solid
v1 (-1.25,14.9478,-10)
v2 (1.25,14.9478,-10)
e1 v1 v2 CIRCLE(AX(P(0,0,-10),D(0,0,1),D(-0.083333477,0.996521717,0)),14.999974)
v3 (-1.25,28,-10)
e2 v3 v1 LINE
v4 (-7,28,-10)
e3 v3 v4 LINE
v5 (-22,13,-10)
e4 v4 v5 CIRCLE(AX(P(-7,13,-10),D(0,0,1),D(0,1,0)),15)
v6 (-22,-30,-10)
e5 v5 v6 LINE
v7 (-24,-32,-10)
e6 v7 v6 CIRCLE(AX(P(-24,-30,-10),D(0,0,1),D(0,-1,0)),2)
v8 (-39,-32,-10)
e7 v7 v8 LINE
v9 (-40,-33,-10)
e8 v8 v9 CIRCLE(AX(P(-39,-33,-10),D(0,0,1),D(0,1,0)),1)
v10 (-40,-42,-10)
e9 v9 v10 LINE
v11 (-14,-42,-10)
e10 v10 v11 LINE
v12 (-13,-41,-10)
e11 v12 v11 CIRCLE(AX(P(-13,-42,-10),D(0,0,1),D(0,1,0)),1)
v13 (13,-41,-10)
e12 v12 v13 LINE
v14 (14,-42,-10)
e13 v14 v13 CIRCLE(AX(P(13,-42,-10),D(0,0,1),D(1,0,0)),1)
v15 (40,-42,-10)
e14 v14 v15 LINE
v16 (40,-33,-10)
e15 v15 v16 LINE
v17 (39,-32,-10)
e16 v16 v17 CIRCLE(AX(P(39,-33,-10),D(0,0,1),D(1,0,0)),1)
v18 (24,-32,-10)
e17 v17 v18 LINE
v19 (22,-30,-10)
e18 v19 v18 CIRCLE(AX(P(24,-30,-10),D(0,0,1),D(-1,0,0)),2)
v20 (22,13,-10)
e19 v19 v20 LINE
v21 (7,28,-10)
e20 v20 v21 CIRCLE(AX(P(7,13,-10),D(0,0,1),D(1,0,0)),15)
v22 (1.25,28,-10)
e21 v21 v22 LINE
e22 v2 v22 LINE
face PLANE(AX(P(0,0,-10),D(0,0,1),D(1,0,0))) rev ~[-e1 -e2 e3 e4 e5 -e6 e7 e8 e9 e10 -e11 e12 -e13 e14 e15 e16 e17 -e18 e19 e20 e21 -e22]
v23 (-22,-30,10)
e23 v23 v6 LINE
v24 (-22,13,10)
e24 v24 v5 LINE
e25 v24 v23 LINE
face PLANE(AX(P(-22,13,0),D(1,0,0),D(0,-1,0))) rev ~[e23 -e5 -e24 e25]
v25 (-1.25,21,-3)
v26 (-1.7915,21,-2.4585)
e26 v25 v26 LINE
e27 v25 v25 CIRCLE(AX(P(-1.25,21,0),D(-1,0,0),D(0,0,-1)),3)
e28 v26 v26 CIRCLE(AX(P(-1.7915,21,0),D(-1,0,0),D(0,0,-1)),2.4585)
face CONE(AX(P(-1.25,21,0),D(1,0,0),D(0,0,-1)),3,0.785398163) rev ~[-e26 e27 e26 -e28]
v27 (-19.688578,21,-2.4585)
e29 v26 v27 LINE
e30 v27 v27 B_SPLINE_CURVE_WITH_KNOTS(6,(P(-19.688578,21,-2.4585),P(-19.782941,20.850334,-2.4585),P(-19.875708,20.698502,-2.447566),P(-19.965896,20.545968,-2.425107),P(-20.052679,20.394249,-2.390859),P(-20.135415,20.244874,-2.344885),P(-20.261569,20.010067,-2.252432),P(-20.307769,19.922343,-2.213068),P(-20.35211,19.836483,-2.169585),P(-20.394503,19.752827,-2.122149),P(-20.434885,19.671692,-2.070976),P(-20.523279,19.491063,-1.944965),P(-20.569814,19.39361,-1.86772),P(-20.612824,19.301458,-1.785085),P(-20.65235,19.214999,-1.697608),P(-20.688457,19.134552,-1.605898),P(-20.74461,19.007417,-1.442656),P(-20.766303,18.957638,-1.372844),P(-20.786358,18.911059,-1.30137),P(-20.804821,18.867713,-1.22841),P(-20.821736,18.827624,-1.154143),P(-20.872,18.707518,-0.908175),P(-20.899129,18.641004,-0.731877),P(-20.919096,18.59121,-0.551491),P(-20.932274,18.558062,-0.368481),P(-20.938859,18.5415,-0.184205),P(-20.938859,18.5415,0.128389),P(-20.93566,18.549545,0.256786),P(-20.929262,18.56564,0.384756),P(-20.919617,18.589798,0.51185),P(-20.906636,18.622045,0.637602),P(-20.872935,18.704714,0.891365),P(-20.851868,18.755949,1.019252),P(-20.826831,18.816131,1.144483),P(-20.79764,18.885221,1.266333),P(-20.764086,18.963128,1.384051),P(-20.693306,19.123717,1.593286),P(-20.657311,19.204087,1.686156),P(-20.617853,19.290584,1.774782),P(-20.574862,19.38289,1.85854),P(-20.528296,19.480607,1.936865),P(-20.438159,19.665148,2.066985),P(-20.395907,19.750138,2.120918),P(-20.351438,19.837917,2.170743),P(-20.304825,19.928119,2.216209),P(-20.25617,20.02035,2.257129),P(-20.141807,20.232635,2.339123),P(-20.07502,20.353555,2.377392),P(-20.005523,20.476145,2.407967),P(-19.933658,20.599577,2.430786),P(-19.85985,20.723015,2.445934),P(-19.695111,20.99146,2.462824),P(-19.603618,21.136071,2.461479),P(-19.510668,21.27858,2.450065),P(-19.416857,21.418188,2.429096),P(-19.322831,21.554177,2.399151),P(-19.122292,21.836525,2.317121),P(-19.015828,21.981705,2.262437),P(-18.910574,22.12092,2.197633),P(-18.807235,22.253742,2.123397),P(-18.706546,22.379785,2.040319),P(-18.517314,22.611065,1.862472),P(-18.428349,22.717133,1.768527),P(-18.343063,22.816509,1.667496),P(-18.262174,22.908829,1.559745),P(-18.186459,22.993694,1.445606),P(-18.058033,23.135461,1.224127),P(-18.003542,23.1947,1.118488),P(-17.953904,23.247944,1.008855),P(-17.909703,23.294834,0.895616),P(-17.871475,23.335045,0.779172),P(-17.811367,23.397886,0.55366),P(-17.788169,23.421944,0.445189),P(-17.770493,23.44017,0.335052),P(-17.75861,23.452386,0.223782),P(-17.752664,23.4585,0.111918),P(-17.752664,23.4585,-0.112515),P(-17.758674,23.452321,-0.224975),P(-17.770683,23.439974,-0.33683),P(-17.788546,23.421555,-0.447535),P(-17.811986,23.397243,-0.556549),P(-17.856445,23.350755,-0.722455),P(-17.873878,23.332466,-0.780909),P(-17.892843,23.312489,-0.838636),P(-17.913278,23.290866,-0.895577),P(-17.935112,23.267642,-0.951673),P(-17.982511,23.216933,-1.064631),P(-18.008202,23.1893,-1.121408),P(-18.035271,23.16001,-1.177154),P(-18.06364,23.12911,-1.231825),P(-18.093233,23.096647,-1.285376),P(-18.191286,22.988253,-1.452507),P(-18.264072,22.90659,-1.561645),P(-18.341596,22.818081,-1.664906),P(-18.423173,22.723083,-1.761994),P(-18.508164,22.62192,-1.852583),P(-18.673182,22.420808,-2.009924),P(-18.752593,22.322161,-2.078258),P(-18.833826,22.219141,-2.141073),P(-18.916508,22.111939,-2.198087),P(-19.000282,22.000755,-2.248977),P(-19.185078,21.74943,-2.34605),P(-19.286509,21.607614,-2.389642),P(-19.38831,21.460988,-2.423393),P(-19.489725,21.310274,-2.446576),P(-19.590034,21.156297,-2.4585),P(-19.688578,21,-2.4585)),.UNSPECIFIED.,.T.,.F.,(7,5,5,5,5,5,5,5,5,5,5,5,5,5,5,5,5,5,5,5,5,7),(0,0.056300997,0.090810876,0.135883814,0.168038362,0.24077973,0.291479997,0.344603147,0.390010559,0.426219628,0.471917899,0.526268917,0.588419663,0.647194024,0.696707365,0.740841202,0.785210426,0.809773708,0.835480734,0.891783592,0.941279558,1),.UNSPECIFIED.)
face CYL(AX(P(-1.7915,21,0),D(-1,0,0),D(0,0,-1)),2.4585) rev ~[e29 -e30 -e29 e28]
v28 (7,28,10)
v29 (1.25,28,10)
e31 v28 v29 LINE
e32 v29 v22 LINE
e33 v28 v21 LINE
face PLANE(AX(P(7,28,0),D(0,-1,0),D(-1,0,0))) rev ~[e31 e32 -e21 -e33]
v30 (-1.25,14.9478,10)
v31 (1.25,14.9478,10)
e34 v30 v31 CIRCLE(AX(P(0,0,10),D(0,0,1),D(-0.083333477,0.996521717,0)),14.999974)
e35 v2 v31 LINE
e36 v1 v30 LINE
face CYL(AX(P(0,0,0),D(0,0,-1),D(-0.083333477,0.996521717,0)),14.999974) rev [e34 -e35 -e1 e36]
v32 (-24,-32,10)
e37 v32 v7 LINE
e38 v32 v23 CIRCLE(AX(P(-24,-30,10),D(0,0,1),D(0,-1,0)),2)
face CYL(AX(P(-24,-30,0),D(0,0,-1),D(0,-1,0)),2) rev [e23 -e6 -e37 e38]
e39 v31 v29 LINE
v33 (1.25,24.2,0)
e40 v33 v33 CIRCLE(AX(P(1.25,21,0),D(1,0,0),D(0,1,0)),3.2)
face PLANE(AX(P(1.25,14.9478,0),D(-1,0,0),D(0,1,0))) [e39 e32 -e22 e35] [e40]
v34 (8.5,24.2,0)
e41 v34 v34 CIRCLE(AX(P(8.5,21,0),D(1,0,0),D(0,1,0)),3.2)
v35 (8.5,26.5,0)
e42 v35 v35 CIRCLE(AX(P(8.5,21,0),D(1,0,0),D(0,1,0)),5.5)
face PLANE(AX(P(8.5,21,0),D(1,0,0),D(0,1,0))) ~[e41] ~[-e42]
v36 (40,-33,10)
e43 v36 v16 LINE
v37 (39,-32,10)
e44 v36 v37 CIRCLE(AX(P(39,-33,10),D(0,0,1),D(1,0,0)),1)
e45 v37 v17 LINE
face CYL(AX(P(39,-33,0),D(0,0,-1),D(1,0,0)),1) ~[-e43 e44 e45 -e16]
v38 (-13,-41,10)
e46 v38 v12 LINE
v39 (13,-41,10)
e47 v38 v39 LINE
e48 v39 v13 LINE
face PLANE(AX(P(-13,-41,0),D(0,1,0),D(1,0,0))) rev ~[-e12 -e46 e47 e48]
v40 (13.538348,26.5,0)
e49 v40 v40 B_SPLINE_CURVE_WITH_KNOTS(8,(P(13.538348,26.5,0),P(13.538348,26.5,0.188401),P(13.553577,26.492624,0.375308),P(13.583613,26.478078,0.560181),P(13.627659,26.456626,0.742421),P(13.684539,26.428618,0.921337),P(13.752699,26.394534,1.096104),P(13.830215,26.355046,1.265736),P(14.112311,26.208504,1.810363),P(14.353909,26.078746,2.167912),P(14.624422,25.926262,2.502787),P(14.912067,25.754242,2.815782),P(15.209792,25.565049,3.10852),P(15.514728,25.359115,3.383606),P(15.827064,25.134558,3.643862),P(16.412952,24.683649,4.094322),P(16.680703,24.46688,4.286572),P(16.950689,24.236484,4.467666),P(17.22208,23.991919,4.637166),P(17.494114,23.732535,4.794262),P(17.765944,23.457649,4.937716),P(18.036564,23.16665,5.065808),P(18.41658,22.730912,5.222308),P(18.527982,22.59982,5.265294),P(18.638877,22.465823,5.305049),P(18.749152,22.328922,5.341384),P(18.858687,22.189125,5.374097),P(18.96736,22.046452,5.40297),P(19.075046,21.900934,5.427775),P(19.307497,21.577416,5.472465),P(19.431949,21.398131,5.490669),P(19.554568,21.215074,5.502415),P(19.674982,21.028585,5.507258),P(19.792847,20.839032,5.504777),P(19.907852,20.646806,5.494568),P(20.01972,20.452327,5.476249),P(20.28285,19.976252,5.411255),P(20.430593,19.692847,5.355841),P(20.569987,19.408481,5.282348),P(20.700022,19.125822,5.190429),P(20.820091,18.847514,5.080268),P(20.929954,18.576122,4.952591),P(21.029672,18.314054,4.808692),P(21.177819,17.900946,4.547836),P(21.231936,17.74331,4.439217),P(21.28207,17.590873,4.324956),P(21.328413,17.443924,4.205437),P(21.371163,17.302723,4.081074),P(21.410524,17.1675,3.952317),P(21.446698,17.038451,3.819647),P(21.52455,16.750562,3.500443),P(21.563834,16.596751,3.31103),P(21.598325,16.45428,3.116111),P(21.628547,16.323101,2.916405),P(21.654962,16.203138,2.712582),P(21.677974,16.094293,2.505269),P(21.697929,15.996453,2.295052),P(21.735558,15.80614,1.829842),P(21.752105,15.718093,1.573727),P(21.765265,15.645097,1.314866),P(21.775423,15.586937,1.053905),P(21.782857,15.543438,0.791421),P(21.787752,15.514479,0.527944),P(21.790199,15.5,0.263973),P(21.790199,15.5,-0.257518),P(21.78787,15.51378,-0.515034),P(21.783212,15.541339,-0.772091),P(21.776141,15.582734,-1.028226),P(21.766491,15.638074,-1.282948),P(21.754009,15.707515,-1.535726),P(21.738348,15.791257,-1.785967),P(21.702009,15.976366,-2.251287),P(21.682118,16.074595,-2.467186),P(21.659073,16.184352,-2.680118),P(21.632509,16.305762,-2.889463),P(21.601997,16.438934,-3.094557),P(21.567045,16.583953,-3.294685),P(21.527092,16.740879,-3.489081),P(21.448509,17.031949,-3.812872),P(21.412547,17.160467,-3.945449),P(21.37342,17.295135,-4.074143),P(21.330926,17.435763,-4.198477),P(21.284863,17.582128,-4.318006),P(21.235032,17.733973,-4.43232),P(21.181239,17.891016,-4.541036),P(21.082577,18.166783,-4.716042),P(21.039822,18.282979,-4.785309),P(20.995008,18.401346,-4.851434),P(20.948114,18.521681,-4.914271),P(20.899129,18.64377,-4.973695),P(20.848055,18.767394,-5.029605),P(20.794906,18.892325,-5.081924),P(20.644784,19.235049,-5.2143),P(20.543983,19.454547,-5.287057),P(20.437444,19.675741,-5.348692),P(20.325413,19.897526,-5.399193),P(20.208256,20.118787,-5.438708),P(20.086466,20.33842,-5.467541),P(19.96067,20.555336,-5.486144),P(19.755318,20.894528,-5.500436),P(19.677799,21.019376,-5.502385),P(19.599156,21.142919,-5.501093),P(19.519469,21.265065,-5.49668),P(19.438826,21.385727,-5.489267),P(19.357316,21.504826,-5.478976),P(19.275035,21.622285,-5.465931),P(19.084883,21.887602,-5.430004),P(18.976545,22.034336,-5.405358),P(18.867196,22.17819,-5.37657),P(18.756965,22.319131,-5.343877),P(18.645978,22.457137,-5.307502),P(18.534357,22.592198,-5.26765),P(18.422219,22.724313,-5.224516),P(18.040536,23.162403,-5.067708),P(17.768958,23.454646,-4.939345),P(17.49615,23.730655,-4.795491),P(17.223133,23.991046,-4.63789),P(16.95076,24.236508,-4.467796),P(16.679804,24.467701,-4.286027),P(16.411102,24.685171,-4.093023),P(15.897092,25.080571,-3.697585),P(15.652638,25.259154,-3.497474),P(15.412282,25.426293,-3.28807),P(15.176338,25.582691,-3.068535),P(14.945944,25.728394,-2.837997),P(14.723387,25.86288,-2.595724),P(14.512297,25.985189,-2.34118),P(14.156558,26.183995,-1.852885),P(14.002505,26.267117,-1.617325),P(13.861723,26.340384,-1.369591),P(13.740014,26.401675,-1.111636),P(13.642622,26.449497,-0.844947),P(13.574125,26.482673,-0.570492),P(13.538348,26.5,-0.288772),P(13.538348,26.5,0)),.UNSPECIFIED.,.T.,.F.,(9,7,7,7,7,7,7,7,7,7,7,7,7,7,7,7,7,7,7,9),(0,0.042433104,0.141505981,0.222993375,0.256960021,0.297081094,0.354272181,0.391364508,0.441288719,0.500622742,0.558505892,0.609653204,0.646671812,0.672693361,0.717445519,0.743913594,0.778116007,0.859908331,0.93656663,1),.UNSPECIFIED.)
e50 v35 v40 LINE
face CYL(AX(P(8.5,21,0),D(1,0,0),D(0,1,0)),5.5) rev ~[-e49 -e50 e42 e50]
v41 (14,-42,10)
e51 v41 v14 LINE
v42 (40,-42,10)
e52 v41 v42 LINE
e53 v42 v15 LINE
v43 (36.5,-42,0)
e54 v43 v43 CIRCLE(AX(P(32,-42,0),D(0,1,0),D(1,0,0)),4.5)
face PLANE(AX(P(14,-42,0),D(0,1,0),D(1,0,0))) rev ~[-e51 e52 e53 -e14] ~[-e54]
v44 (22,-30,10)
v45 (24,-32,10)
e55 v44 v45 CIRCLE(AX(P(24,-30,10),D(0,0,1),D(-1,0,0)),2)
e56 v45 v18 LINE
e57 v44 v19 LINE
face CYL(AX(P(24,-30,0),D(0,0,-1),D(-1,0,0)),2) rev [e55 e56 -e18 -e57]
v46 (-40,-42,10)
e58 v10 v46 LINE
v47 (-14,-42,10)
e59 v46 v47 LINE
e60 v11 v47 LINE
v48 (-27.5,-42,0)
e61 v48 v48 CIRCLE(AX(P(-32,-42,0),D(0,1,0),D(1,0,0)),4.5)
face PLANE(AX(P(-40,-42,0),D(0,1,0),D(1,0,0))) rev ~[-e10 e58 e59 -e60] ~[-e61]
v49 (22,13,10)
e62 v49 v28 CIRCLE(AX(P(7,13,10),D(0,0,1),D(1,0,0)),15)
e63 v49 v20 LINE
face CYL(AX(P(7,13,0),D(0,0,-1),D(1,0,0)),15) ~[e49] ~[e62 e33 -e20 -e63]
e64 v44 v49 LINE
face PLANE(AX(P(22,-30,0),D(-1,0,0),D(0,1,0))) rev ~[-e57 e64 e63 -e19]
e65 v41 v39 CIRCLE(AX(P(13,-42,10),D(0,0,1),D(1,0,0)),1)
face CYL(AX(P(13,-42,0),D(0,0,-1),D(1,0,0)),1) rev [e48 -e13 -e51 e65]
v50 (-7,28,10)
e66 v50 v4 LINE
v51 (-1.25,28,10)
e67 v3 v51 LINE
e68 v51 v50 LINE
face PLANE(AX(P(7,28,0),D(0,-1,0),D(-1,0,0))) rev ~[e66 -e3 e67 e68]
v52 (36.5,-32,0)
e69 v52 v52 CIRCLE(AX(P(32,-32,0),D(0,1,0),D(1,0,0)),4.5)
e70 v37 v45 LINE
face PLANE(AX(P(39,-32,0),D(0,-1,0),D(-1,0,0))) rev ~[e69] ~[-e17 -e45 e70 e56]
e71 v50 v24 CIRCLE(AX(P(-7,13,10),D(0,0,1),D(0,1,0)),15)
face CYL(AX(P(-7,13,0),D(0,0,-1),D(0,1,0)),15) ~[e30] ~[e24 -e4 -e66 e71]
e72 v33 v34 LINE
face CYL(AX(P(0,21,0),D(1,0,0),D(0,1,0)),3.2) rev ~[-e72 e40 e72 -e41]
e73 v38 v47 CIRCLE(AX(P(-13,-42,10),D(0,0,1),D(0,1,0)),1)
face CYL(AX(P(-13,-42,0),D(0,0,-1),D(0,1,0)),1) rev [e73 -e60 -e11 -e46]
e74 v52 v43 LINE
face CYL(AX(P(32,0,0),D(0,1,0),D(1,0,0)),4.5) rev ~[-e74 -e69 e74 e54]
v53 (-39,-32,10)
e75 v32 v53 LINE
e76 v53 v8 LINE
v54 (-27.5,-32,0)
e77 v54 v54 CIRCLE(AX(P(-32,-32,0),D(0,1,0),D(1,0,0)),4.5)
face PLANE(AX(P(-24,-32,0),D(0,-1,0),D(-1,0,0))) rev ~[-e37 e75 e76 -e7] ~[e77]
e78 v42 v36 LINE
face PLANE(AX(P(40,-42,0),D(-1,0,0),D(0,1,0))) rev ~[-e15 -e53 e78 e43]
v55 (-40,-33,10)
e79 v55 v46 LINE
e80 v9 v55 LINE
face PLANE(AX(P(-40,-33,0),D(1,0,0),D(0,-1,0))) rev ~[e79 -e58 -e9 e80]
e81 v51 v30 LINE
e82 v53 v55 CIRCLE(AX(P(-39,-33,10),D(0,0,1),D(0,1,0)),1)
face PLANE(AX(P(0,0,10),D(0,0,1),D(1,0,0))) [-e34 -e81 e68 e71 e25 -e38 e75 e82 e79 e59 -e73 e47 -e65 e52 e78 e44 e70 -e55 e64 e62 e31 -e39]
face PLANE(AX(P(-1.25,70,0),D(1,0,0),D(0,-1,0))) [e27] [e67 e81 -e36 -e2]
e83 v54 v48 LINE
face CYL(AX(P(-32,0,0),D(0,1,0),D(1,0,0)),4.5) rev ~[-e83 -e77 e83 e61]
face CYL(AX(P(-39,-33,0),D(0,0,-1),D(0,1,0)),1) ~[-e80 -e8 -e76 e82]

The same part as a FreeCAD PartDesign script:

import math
import FreeCAD as App
import Part
import Sketcher

V = App.Vector
Q = App.Units.Quantity


def add_polygon(sketch, points):
    """Adds a closed chain of lines whose ends are joined by coincident constraints."""
    first, n = sketch.GeometryCount, len(points)
    for a, b in zip(points, points[1:] + points[:1]):
        sketch.addGeometry(Part.LineSegment(App.Vector(*a, 0), App.Vector(*b, 0)), False)
    for i in range(n):
        sketch.addConstraint(Sketcher.Constraint("Coincident", first + i, 2, first + (i + 1) % n, 1))

doc = App.newDocument("Part")
body = doc.addObject("PartDesign::Body", "Body")

# Sketch on XY plane
sketch1 = body.newObject("Sketcher::SketchObject", "Sketch")
sketch1.AttachmentSupport = (doc.getObject("XY_Plane"), [""])
sketch1.MapMode = "FlatFace"
sketch1.addGeometry([
    Part.ArcOfCircle(Part.Circle(V(-39, -33, 0), V(0, 0, 1), 1), math.radians(90), math.radians(180)),  # 0
    Part.LineSegment(V(-40, -33, 0), V(-40, -42, 0)),  # 1
    Part.LineSegment(V(-40, -42, 0), V(-14, -42, 0)),  # 2
    Part.ArcOfCircle(Part.Circle(V(-13, -42, 0), V(0, 0, 1), 1), math.radians(90), math.radians(180)),  # 3
    Part.LineSegment(V(-13, -41, 0), V(13, -41, 0)),  # 4
    Part.ArcOfCircle(Part.Circle(V(13, -42, 0), V(0, 0, 1), 1), math.radians(0), math.radians(90)),  # 5
    Part.LineSegment(V(14, -42, 0), V(40, -42, 0)),  # 6
    Part.LineSegment(V(40, -42, 0), V(40, -33, 0)),  # 7
    Part.ArcOfCircle(Part.Circle(V(39, -33, 0), V(0, 0, 1), 1), math.radians(0), math.radians(90)),  # 8
    Part.LineSegment(V(39, -32, 0), V(24, -32, 0)),  # 9
    Part.ArcOfCircle(Part.Circle(V(24, -30, 0), V(0, 0, 1), 2), math.radians(180), math.radians(270)),  # 10
    Part.LineSegment(V(22, -30, 0), V(22, 13, 0)),  # 11
    Part.ArcOfCircle(Part.Circle(V(7, 13, 0), V(0, 0, 1), 15), math.radians(0), math.radians(90)),  # 12
    Part.LineSegment(V(7, 28, 0), V(-7, 28, 0)),  # 13
    Part.ArcOfCircle(Part.Circle(V(-7, 13, 0), V(0, 0, 1), 15), math.radians(90), math.radians(180)),  # 14
    Part.LineSegment(V(-22, 13, 0), V(-22, -30, 0)),  # 15
    Part.ArcOfCircle(Part.Circle(V(-24, -30, 0), V(0, 0, 1), 2), math.radians(-90), math.radians(0)),  # 16
    Part.LineSegment(V(-24, -32, 0), V(-39, -32, 0)),  # 17
], False)
sketch1.addConstraint([
    Sketcher.Constraint("Tangent", 0, 2, 1, 1),
    Sketcher.Constraint("Coincident", 1, 2, 2, 1),
    Sketcher.Constraint("Coincident", 2, 2, 3, 2),
    Sketcher.Constraint("Tangent", 3, 1, 4, 1),
    Sketcher.Constraint("Tangent", 4, 2, 5, 2),
    Sketcher.Constraint("Coincident", 5, 1, 6, 1),
    Sketcher.Constraint("Coincident", 6, 2, 7, 1),
    Sketcher.Constraint("Tangent", 7, 2, 8, 1),
    Sketcher.Constraint("Tangent", 8, 2, 9, 1),
    Sketcher.Constraint("Tangent", 9, 2, 10, 2),
    Sketcher.Constraint("Tangent", 10, 1, 11, 1),
    Sketcher.Constraint("Tangent", 11, 2, 12, 1),
    Sketcher.Constraint("Tangent", 12, 2, 13, 1),
    Sketcher.Constraint("Tangent", 13, 2, 14, 1),
    Sketcher.Constraint("Tangent", 14, 2, 15, 1),
    Sketcher.Constraint("Tangent", 15, 2, 16, 2),
    Sketcher.Constraint("Tangent", 16, 1, 17, 1),
    Sketcher.Constraint("Tangent", 17, 2, 0, 1),
    Sketcher.Constraint("Vertical", 1),
    Sketcher.Constraint("Horizontal", 2),
    Sketcher.Constraint("Horizontal", 4),
    Sketcher.Constraint("Horizontal", 6),
    Sketcher.Constraint("Vertical", 7),
    Sketcher.Constraint("Horizontal", 9),
    Sketcher.Constraint("Vertical", 11),
    Sketcher.Constraint("Horizontal", 13),
    Sketcher.Constraint("Vertical", 15),
    Sketcher.Constraint("Horizontal", 17),
    Sketcher.Constraint("Equal", 0, 3),
    Sketcher.Constraint("Equal", 3, 5),
    Sketcher.Constraint("Equal", 5, 8),
    Sketcher.Constraint("Equal", 12, 14),
    Sketcher.Constraint("Equal", 10, 16),
    Sketcher.Constraint("Symmetric", 0, 3, 8, 3, -2),
    Sketcher.Constraint("Symmetric", 2, 2, 5, 1, -2),
    Sketcher.Constraint("Horizontal", 5, 3, 1, 2),
    Sketcher.Constraint("Equal", 2, 4),
    Sketcher.Constraint("Equal", 9, 17),
    Sketcher.Constraint("Radius", 0, Q("1 mm")),
    Sketcher.Constraint("Radius", 10, Q("2 mm")),
    Sketcher.Constraint("Radius", 12, Q("15 mm")),
    Sketcher.Constraint("DistanceX", 2, 1, 2, 2, Q("26 mm")),
    Sketcher.Constraint("DistanceX", 9, 2, 9, 1, Q("15 mm")),
    Sketcher.Constraint("DistanceY", 1, 2, 1, 1, Q("9 mm")),
    Sketcher.Constraint("DistanceY", 11, 1, 11, 2, Q("43 mm")),
    Sketcher.Constraint("DistanceY", 0, 3, -1, 1, Q("33 mm")),
])
pad1 = body.newObject("PartDesign::Pad", "Pad")
pad1.Profile = sketch1
pad1.Length = 20
pad1.Midplane = True

# Sketch on XY plane
sketch2 = body.newObject("Sketcher::SketchObject", "Sketch001")
sketch2.AttachmentSupport = (doc.getObject("XY_Plane"), [""])
sketch2.MapMode = "FlatFace"
sketch2.addGeometry([
    Part.LineSegment(V(-1.25, 70, 0), V(-1.25, 14.9478, 0)),
    Part.ArcOfCircle(Part.Circle(V(0, 0, 0), V(0, 0, 1), 14.999974), math.radians(94.7802), math.radians(445.2198)),
    Part.LineSegment(V(1.25, 14.9478, 0), V(1.25, 70, 0)),
    Part.LineSegment(V(1.25, 70, 0), V(-1.25, 70, 0)),
], False)
sketch2.addConstraint([
    Sketcher.Constraint("Coincident", 0, 2, 1, 1),
    Sketcher.Constraint("Coincident", 1, 2, 2, 1),
    Sketcher.Constraint("Coincident", 2, 2, 3, 1),
    Sketcher.Constraint("Coincident", 3, 2, 0, 1),
    Sketcher.Constraint("Vertical", 0),
    Sketcher.Constraint("Vertical", 2),
    Sketcher.Constraint("Horizontal", 3),
    Sketcher.Constraint("Coincident", 1, 3, -1, 1),
    Sketcher.Constraint("Horizontal", 0, 2, 1, 2),
    Sketcher.Constraint("Radius", 1, Q("15 mm")),
    Sketcher.Constraint("DistanceX", 3, 2, 3, 1, Q("2.5 mm")),
    Sketcher.Constraint("DistanceY", -1, 1, 2, 2, Q("70 mm")),
])
pocket1 = body.newObject("PartDesign::Pocket", "Pocket")
pocket1.Profile = sketch2
pocket1.Length = 20
pocket1.Midplane = True

# Sketch on XZ plane
sketch3 = body.newObject("Sketcher::SketchObject", "Sketch002")
sketch3.AttachmentSupport = (doc.getObject("XZ_Plane"), [""])
sketch3.MapMode = "FlatFace"
sketch3.addGeometry(Part.Circle(V(32, 0, 0), V(0, 0, 1), 4.5), False)
sketch3.addConstraint([
    Sketcher.Constraint("PointOnObject", 0, 3, -1),
    Sketcher.Constraint("Diameter", 0, Q("9 mm")),
    Sketcher.Constraint("DistanceX", -1, 1, 0, 3, Q("32 mm")),
])
pocket2 = body.newObject("PartDesign::Pocket", "Pocket001")
pocket2.Profile = sketch3
pocket2.Length = 42
pocket2.Reversed = True

# Sketch on XZ plane
sketch4 = body.newObject("Sketcher::SketchObject", "Sketch003")
sketch4.AttachmentSupport = (doc.getObject("XZ_Plane"), [""])
sketch4.MapMode = "FlatFace"
sketch4.addGeometry(Part.Circle(V(-32, 0, 0), V(0, 0, 1), 4.5), False)
sketch4.addConstraint([
    Sketcher.Constraint("PointOnObject", 0, 3, -1),
    Sketcher.Constraint("Diameter", 0, Q("9 mm")),
    Sketcher.Constraint("DistanceX", 0, 3, -1, 1, Q("32 mm")),
])
pocket3 = body.newObject("PartDesign::Pocket", "Pocket002")
pocket3.Profile = sketch4
pocket3.Length = 42
pocket3.Reversed = True

# Sketch on XY plane
sketch5 = body.newObject("Sketcher::SketchObject", "Sketch004")
sketch5.AttachmentSupport = (doc.getObject("XY_Plane"), [""])
sketch5.MapMode = "FlatFace"
add_polygon(sketch5, [(0, 21), (22, 21), (22, 26.5), (8.5, 26.5), (8.5, 24.2), (0, 24.2)])  # lines 0-5
sketch5.addGeometry(Part.LineSegment(V(0, 21, 0), V(22, 21, 0)), True)  # axis
sketch5.addConstraint([
    Sketcher.Constraint("Horizontal", 0),
    Sketcher.Constraint("Vertical", 1),
    Sketcher.Constraint("Horizontal", 2),
    Sketcher.Constraint("Vertical", 3),
    Sketcher.Constraint("Horizontal", 4),
    Sketcher.Constraint("Vertical", 5),
    Sketcher.Constraint("Horizontal", 6),
    Sketcher.Constraint("Coincident", 6, 1, 5, 2),
    Sketcher.Constraint("PointOnObject", 4, 2, -2),
    Sketcher.Constraint("Vertical", 1, 2, 6, 2),
    Sketcher.Constraint("DistanceX", 0, 1, 0, 2, Q("22 mm")),
    Sketcher.Constraint("DistanceX", 2, 2, 2, 1, Q("13.5 mm")),
    Sketcher.Constraint("DistanceY", 1, 1, 1, 2, Q("5.5 mm")),
    Sketcher.Constraint("DistanceY", 3, 2, 3, 1, Q("2.3 mm")),
    Sketcher.Constraint("DistanceY", -1, 1, 0, 2, Q("21 mm")),
])
groove = body.newObject("PartDesign::Groove", "Groove")
groove.Profile = sketch5
groove.ReferenceAxis = (sketch5, ["Axis0"])
groove.Angle = 360

# Sketch on YZ plane
sketch6 = body.newObject("Sketcher::SketchObject", "Sketch005")
sketch6.AttachmentSupport = (doc.getObject("YZ_Plane"), [""])
sketch6.MapMode = "FlatFace"
sketch6.AttachmentOffset = App.Placement(V(0, 0, -1.25), App.Rotation())
sketch6.addGeometry(Part.Circle(V(21, 0, 0), V(0, 0, 1), 2.4585), False)
sketch6.addConstraint([
    Sketcher.Constraint("PointOnObject", 0, 3, -1),
    Sketcher.Constraint("Diameter", 0, Q("4.917 mm")),
    Sketcher.Constraint("DistanceX", -1, 1, 0, 3, Q("21 mm")),
])
doc.recompute()
hole = body.newObject("PartDesign::Hole", "Hole")
hole.Profile = sketch6
hole.ThreadType = "None"
hole.Diameter = 4.917
hole.DepthType = "Dimension"
hole.Depth = 20.75
hole.DrillPoint = "Flat"
hole.HoleCutType = "Countersink"
hole.HoleCutDiameter = 6
hole.HoleCutCountersinkAngle = 90

doc.recompute()
